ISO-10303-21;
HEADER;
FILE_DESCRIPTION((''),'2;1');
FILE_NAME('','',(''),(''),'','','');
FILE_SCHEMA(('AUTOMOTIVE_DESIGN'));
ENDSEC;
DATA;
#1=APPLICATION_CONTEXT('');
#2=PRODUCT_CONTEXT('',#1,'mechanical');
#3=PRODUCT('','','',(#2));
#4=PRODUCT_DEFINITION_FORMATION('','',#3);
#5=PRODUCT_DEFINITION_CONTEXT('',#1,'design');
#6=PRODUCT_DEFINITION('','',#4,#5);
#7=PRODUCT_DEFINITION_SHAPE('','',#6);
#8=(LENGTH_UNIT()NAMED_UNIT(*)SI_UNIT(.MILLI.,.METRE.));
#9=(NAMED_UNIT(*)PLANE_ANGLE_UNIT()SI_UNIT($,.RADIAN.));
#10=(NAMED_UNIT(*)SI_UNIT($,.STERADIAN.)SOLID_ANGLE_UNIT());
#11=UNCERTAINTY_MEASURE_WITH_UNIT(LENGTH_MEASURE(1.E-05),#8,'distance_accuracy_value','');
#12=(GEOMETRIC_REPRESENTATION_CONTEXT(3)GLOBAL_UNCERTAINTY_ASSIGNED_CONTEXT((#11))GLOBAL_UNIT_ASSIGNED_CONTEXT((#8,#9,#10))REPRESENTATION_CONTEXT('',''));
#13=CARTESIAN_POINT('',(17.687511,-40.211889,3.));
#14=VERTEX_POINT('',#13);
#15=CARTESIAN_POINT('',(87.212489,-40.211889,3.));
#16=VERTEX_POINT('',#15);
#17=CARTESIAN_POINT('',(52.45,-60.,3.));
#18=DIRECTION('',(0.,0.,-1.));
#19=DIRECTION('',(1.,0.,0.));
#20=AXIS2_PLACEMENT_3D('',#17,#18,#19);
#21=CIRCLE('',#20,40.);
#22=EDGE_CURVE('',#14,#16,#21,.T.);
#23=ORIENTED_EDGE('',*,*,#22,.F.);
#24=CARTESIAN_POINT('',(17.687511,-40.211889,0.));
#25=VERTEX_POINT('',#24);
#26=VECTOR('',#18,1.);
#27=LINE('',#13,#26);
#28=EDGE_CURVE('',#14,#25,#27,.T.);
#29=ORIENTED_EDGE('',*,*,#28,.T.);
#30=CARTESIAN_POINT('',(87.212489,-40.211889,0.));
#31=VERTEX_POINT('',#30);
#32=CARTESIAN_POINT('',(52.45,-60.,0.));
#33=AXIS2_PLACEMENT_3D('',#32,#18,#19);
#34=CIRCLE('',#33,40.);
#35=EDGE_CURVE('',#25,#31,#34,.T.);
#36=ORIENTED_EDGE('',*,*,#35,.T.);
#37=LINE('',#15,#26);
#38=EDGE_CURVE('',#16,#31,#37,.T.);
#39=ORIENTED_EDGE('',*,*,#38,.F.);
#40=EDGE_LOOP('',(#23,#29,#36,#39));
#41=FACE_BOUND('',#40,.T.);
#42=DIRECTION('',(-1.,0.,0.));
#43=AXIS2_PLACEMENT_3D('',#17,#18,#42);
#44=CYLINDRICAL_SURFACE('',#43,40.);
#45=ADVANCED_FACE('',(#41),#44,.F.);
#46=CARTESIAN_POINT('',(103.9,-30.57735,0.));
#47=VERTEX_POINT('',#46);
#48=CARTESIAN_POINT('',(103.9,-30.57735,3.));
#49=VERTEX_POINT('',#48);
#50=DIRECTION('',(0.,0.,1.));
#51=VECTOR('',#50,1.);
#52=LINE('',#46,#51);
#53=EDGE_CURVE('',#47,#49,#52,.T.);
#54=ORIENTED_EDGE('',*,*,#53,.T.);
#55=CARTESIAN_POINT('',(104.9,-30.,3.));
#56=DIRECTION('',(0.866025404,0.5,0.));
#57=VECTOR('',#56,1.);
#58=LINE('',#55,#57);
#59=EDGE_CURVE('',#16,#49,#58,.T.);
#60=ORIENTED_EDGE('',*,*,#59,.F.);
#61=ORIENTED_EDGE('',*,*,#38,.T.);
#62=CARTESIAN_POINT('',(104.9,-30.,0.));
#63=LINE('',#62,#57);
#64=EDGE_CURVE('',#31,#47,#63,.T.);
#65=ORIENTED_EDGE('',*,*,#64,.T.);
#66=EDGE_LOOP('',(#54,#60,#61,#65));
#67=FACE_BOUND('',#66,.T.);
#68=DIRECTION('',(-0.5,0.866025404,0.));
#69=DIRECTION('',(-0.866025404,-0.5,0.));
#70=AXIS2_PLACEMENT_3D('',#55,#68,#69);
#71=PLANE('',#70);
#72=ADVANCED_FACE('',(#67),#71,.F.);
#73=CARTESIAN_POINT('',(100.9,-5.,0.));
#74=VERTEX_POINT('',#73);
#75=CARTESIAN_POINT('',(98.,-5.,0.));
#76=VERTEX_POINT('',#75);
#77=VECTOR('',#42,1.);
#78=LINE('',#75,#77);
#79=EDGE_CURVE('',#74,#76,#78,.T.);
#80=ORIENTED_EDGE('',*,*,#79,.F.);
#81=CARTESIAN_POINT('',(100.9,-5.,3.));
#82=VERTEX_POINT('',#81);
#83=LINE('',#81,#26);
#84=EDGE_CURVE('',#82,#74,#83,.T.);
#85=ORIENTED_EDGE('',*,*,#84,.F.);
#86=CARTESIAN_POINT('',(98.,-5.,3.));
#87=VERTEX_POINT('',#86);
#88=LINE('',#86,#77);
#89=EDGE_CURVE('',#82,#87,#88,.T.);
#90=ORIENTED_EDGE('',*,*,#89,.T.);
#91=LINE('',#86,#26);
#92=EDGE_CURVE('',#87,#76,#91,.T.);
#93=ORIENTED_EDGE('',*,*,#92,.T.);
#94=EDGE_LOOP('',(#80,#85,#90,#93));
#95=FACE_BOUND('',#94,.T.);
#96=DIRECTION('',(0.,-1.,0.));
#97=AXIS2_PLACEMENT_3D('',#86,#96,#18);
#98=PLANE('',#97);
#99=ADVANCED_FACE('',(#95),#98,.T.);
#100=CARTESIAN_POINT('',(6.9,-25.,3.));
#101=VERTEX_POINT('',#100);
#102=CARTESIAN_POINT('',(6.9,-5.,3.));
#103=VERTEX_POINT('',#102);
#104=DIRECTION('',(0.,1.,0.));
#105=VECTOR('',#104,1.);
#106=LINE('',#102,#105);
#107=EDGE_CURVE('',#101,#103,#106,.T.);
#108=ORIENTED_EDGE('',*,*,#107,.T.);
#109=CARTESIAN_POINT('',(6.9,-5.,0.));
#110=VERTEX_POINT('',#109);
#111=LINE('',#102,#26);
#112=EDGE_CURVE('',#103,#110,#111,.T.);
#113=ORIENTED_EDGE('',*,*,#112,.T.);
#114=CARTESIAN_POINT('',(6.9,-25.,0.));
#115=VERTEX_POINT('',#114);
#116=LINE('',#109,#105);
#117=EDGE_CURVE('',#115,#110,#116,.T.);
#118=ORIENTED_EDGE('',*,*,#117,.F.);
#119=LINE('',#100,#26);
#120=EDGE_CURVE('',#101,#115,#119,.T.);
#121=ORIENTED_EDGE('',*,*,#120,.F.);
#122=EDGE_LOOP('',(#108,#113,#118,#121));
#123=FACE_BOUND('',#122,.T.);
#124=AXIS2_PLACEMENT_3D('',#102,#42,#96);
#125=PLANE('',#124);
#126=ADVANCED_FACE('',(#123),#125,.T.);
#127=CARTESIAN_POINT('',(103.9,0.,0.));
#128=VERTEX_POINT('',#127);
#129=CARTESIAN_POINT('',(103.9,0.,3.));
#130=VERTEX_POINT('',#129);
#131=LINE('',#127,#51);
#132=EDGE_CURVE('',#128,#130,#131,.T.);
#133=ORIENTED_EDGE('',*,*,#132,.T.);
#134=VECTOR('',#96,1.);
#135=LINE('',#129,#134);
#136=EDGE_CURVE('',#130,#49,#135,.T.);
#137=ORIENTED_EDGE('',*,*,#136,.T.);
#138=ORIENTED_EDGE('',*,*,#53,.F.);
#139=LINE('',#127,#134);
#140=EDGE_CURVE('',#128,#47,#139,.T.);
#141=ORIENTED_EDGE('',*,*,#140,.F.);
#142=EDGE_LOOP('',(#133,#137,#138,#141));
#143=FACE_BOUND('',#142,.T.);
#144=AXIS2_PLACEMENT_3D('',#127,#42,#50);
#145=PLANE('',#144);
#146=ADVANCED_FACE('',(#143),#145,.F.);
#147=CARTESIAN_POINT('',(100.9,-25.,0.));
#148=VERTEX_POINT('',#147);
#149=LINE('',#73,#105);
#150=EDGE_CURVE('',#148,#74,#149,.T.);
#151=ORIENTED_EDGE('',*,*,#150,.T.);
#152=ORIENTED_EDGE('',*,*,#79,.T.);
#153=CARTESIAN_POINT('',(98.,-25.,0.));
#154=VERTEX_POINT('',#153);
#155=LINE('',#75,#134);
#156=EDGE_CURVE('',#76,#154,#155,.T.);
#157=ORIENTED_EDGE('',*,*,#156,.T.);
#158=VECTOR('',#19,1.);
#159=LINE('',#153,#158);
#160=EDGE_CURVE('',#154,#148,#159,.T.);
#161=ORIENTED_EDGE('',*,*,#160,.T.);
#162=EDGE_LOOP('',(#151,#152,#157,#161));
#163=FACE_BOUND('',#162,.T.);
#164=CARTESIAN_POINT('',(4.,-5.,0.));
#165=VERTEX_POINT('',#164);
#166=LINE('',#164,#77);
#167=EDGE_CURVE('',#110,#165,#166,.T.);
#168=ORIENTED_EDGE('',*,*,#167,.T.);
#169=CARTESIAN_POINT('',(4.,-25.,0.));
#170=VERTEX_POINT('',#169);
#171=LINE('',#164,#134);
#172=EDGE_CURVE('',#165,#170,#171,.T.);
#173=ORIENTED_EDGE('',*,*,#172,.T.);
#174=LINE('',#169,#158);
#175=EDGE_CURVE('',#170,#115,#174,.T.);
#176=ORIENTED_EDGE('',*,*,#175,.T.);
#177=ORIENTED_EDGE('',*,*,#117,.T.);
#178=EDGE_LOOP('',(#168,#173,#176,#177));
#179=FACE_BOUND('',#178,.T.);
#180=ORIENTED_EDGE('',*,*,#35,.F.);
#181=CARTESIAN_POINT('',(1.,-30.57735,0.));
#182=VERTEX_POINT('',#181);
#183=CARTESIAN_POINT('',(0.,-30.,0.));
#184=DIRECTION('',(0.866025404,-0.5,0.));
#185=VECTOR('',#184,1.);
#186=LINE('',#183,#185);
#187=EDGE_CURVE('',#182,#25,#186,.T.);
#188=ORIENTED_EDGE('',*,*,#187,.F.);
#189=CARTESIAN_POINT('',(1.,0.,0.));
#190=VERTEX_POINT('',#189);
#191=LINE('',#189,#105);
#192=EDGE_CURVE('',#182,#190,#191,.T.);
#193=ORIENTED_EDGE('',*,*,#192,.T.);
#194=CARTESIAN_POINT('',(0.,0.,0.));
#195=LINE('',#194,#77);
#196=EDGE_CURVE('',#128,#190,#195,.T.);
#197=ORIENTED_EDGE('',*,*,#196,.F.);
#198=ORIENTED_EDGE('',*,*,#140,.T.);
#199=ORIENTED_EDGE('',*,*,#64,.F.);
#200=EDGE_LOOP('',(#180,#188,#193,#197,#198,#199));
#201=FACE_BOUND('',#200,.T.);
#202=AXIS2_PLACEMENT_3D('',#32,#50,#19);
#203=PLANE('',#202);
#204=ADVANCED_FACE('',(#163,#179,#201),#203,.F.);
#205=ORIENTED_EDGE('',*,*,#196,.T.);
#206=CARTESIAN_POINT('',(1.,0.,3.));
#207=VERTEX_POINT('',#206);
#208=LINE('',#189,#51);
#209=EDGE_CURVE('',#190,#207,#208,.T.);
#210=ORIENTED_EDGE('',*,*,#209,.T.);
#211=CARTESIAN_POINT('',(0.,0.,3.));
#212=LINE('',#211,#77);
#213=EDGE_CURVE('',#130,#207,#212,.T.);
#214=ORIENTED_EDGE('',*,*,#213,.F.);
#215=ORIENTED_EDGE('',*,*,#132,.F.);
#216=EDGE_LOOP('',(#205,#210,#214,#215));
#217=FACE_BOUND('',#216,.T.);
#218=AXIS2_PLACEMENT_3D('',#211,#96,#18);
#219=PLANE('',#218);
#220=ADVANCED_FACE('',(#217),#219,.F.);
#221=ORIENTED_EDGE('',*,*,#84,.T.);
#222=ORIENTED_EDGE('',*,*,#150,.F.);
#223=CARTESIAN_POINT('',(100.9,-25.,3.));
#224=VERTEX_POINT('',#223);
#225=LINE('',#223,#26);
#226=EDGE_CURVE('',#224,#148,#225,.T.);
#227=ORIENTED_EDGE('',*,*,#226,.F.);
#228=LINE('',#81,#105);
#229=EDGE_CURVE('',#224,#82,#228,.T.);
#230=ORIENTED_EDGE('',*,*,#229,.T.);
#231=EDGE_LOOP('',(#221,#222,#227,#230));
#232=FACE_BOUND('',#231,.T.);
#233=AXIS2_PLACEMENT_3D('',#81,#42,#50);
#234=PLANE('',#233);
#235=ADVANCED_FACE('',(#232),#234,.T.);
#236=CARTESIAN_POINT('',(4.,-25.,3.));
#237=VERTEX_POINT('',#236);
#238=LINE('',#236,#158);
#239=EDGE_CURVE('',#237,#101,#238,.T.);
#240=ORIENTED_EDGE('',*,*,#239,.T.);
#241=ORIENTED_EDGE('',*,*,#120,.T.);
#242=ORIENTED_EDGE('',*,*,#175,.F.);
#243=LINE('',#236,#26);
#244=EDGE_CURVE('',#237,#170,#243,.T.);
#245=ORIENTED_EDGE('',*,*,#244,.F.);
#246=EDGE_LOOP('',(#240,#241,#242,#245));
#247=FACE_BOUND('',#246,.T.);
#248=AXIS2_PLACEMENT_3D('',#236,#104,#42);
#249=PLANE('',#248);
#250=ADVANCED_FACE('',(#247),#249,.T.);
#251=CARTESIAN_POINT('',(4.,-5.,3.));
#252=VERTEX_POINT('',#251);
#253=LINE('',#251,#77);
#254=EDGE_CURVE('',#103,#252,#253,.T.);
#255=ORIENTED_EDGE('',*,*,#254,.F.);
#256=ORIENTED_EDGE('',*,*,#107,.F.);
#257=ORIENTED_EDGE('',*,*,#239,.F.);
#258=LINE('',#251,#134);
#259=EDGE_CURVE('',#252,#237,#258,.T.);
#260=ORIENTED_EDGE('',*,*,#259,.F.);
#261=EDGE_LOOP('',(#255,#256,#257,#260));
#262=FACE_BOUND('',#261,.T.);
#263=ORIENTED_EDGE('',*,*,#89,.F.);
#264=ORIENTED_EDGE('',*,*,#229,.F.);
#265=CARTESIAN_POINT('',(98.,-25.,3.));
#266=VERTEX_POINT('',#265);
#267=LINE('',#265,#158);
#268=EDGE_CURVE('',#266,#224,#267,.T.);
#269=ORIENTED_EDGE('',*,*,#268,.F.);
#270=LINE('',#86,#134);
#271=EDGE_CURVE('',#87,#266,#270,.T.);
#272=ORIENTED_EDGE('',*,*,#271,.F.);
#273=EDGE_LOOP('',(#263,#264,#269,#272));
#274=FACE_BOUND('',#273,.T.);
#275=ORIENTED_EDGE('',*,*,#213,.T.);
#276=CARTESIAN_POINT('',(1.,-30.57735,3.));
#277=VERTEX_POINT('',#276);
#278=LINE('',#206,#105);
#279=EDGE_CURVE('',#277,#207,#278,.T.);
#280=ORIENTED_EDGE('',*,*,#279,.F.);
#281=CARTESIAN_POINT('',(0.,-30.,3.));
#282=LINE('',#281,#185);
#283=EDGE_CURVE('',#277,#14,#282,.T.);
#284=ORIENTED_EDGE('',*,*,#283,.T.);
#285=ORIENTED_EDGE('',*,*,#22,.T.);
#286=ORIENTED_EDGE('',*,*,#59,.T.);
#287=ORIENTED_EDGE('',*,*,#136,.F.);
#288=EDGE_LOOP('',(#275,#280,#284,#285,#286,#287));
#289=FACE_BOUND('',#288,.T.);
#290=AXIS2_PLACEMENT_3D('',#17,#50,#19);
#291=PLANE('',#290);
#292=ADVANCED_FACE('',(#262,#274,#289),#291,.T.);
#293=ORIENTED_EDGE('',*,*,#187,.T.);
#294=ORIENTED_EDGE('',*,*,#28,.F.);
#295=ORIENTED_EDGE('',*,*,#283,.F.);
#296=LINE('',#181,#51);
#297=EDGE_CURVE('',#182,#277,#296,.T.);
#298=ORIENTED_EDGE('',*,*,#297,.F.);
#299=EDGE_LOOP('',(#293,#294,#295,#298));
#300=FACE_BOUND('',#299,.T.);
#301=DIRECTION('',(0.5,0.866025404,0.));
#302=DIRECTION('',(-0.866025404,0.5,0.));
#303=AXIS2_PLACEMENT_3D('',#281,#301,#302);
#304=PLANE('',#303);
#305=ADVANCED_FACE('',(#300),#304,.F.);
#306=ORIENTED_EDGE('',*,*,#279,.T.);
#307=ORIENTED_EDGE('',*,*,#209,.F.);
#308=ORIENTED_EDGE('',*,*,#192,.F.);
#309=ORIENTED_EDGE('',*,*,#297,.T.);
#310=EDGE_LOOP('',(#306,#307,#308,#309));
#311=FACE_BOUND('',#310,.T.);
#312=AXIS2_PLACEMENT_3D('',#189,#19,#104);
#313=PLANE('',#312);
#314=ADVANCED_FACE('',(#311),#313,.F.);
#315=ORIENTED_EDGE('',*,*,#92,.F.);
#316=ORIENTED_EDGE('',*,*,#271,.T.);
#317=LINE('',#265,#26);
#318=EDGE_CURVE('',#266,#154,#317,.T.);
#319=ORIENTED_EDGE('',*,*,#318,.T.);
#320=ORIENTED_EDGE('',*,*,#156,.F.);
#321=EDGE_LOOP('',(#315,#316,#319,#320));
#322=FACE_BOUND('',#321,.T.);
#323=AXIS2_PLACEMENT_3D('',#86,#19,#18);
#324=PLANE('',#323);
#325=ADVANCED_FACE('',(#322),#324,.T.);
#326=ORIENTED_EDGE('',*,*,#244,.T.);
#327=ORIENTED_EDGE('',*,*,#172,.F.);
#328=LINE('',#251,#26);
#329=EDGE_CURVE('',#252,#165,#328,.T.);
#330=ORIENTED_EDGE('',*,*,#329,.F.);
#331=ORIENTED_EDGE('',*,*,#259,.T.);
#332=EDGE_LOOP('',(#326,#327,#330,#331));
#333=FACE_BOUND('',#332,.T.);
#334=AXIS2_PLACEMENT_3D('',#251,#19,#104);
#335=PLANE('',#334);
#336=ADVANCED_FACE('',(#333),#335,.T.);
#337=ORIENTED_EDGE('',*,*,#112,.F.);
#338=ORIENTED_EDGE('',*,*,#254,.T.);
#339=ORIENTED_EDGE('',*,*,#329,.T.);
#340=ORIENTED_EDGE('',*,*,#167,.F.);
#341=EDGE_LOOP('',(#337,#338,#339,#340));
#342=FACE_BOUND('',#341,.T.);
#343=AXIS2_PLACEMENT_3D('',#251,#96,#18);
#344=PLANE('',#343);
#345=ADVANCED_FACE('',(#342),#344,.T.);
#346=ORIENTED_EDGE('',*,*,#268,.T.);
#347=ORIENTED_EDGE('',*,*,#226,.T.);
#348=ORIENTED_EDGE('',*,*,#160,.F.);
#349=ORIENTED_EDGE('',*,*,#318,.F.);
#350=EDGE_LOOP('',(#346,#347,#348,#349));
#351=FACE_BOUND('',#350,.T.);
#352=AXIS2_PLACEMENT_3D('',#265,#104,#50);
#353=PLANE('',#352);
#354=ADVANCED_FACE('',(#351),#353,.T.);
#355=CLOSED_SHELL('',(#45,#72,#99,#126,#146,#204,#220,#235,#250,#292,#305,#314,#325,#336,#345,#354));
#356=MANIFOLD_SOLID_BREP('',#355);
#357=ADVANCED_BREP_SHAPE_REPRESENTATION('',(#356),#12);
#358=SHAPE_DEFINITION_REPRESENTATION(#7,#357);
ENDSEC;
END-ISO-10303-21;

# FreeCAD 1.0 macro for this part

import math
import FreeCAD as App
import Part
import Sketcher

V = App.Vector
Q = App.Units.Quantity

doc = App.newDocument("Part")
body = doc.addObject("PartDesign::Body", "Body")

sketch1 = body.newObject("Sketcher::SketchObject", "Sketch")
sketch1.AttachmentSupport = (doc.getObject("XY_Plane"), [""])
sketch1.MapMode = "FlatFace"
sketch1.addGeometry(Part.LineSegment(V(104.9, 0, 0), V(0, 0, 0)), False)
sketch1.addGeometry(Part.LineSegment(V(0, 0, 0), V(0, -30, 0)), False)
sketch1.addGeometry(Part.LineSegment(V(0, -30, 0), V(17.7, -40.2, 0)), False)
sketch1.addGeometry(Part.ArcOfCircle(Part.Circle(V(52.5, -60, 0), V(0, 0, 1), 40), math.radians(30), math.radians(150)), False)
sketch1.addGeometry(Part.LineSegment(V(87.2, -40.2, 0), V(104.9, -30, 0)), False)
sketch1.addGeometry(Part.LineSegment(V(104.9, -30, 0), V(104.9, 0, 0)), False)
sketch1.addGeometry(Part.LineSegment(V(98, -25, 0), V(98, -5, 0)), False)
sketch1.addGeometry(Part.LineSegment(V(98, -5, 0), V(100.9, -5, 0)), False)
sketch1.addGeometry(Part.LineSegment(V(100.9, -5, 0), V(100.9, -25, 0)), False)
sketch1.addGeometry(Part.LineSegment(V(100.9, -25, 0), V(98, -25, 0)), False)
sketch1.addGeometry(Part.LineSegment(V(4, -25, 0), V(4, -5, 0)), False)
sketch1.addGeometry(Part.LineSegment(V(4, -5, 0), V(6.9, -5, 0)), False)
sketch1.addGeometry(Part.LineSegment(V(6.9, -5, 0), V(6.9, -25, 0)), False)
sketch1.addGeometry(Part.LineSegment(V(6.9, -25, 0), V(4, -25, 0)), False)
sketch1.addConstraint(Sketcher.Constraint("Coincident", 0, 2, 1, 1))
sketch1.addConstraint(Sketcher.Constraint("Coincident", 1, 2, 2, 1))
sketch1.addConstraint(Sketcher.Constraint("Coincident", 2, 2, 3, 2))
sketch1.addConstraint(Sketcher.Constraint("Coincident", 3, 1, 4, 1))
sketch1.addConstraint(Sketcher.Constraint("Coincident", 4, 2, 5, 1))
sketch1.addConstraint(Sketcher.Constraint("Coincident", 5, 2, 0, 1))
sketch1.addConstraint(Sketcher.Constraint("Coincident", 6, 2, 7, 1))
sketch1.addConstraint(Sketcher.Constraint("Coincident", 7, 2, 8, 1))
sketch1.addConstraint(Sketcher.Constraint("Coincident", 8, 2, 9, 1))
sketch1.addConstraint(Sketcher.Constraint("Coincident", 9, 2, 6, 1))
sketch1.addConstraint(Sketcher.Constraint("Coincident", 10, 2, 11, 1))
sketch1.addConstraint(Sketcher.Constraint("Coincident", 11, 2, 12, 1))
sketch1.addConstraint(Sketcher.Constraint("Coincident", 12, 2, 13, 1))
sketch1.addConstraint(Sketcher.Constraint("Coincident", 13, 2, 10, 1))
sketch1.addConstraint(Sketcher.Constraint("Horizontal", 0))
sketch1.addConstraint(Sketcher.Constraint("Vertical", 1))
sketch1.addConstraint(Sketcher.Constraint("Vertical", 5))
sketch1.addConstraint(Sketcher.Constraint("Vertical", 6))
sketch1.addConstraint(Sketcher.Constraint("Horizontal", 7))
sketch1.addConstraint(Sketcher.Constraint("Vertical", 8))
sketch1.addConstraint(Sketcher.Constraint("Horizontal", 9))
sketch1.addConstraint(Sketcher.Constraint("Vertical", 10))
sketch1.addConstraint(Sketcher.Constraint("Horizontal", 11))
sketch1.addConstraint(Sketcher.Constraint("Vertical", 12))
sketch1.addConstraint(Sketcher.Constraint("Horizontal", 13))
sketch1.addConstraint(Sketcher.Constraint("Coincident", 0, 2, -1, 1))
sketch1.addConstraint(Sketcher.Constraint("Horizontal", 2, 2, 3, 1))
sketch1.addConstraint(Sketcher.Constraint("Horizontal", 1, 2, 4, 2))
sketch1.addConstraint(Sketcher.Constraint("Horizontal", 7, 2, 10, 2))
sketch1.addConstraint(Sketcher.Constraint("Horizontal", 9, 2, 12, 2))
sketch1.addConstraint(Sketcher.Constraint("Equal", 9, 11))
sketch1.addConstraint(Sketcher.Constraint("Equal", 2, 4))
sketch1.addConstraint(Sketcher.Constraint("Radius", 3, 40.0))
sketch1.addConstraint(Sketcher.Constraint("DistanceY", 1, 2, 1, 1, 30.0))
sketch1.addConstraint(Sketcher.Constraint("DistanceY", 6, 1, 6, 2, 20.0))
sketch1.addConstraint(Sketcher.Constraint("Angle", 2, Q("-30 deg")))
sketch1.addConstraint(Sketcher.Constraint("DistanceX", 0, 2, 0, 1, 104.9))
sketch1.addConstraint(Sketcher.Constraint("DistanceX", 7, 1, 7, 2, 2.9))
sketch1.addConstraint(Sketcher.Constraint("DistanceY", 3, 3, -1, 1, 60.0))
sketch1.addConstraint(Sketcher.Constraint("DistanceX", -1, 1, 6, 2, 98.0))
sketch1.addConstraint(Sketcher.Constraint("DistanceY", 6, 2, -1, 1, 5.0))
sketch1.addConstraint(Sketcher.Constraint("DistanceX", -1, 1, 10, 2, 4.0))
pad1 = body.newObject("PartDesign::Pad", "Pad")
pad1.Profile = sketch1
pad1.Length = 3

sketch2 = body.newObject("Sketcher::SketchObject", "Sketch001")
sketch2.AttachmentSupport = (doc.getObject("XY_Plane"), [""])
sketch2.MapMode = "FlatFace"
sketch2.AttachmentOffset = App.Placement(V(0, 0, 3), App.Rotation())
sketch2.addGeometry(Part.LineSegment(V(1, -30.6, 0), V(1, 0, 0)), False)
sketch2.addGeometry(Part.LineSegment(V(1, 0, 0), V(0, 0, 0)), False)
sketch2.addGeometry(Part.LineSegment(V(0, 0, 0), V(0, -30, 0)), False)
sketch2.addGeometry(Part.LineSegment(V(0, -30, 0), V(1, -30.6, 0)), False)
sketch2.addGeometry(Part.LineSegment(V(103.9, 0, 0), V(103.9, -30.6, 0)), False)
sketch2.addGeometry(Part.LineSegment(V(103.9, -30.6, 0), V(104.9, -30, 0)), False)
sketch2.addGeometry(Part.LineSegment(V(104.9, -30, 0), V(104.9, 0, 0)), False)
sketch2.addGeometry(Part.LineSegment(V(104.9, 0, 0), V(103.9, 0, 0)), False)
sketch2.addConstraint(Sketcher.Constraint("Coincident", 0, 2, 1, 1))
sketch2.addConstraint(Sketcher.Constraint("Coincident", 1, 2, 2, 1))
sketch2.addConstraint(Sketcher.Constraint("Coincident", 2, 2, 3, 1))
sketch2.addConstraint(Sketcher.Constraint("Coincident", 3, 2, 0, 1))
sketch2.addConstraint(Sketcher.Constraint("Coincident", 4, 2, 5, 1))
sketch2.addConstraint(Sketcher.Constraint("Coincident", 5, 2, 6, 1))
sketch2.addConstraint(Sketcher.Constraint("Coincident", 6, 2, 7, 1))
sketch2.addConstraint(Sketcher.Constraint("Coincident", 7, 2, 4, 1))
sketch2.addConstraint(Sketcher.Constraint("Vertical", 0))
sketch2.addConstraint(Sketcher.Constraint("Horizontal", 1))
sketch2.addConstraint(Sketcher.Constraint("Vertical", 2))
sketch2.addConstraint(Sketcher.Constraint("Vertical", 4))
sketch2.addConstraint(Sketcher.Constraint("Vertical", 6))
sketch2.addConstraint(Sketcher.Constraint("Horizontal", 7))
sketch2.addConstraint(Sketcher.Constraint("Coincident", 1, 2, -1, 1))
sketch2.addConstraint(Sketcher.Constraint("PointOnObject", 6, 2, -1))
sketch2.addConstraint(Sketcher.Constraint("Horizontal", 3, 2, 4, 2))
sketch2.addConstraint(Sketcher.Constraint("Horizontal", 2, 2, 5, 2))
sketch2.addConstraint(Sketcher.Constraint("Equal", 1, 7))
sketch2.addConstraint(Sketcher.Constraint("DistanceX", 1, 2, 1, 1, 1.0))
sketch2.addConstraint(Sketcher.Constraint("DistanceY", 2, 2, 2, 1, 30.0))
sketch2.addConstraint(Sketcher.Constraint("Angle", 3, Q("-30 deg")))
sketch2.addConstraint(Sketcher.Constraint("DistanceX", -1, 1, 4, 2, 103.9))
pocket1 = body.newObject("PartDesign::Pocket", "Pocket")
pocket1.Profile = sketch2
pocket1.Type = "ThroughAll"

doc.recompute()
